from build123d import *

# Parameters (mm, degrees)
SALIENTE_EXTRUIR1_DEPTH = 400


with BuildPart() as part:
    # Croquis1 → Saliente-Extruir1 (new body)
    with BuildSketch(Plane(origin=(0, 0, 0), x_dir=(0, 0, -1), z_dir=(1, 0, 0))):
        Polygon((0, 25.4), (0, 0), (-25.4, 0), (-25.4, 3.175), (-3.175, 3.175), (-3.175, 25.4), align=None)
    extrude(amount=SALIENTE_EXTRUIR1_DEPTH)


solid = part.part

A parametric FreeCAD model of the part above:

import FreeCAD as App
import Part
import Sketcher

V = App.Vector
Q = App.Units.Quantity

doc = App.newDocument("Part")
body = doc.addObject("PartDesign::Body", "Body")

# Sketch on YZ plane
sketch1 = doc.addObject("Sketcher::SketchObject", "Sketch")
body.addObject(sketch1)
sketch1.AttachmentSupport = (doc.YZ_Plane, [""])
sketch1.MapMode = "FlatFace"
sketch1.addGeometry([
    Part.LineSegment(V(0, 0, 0), V(25.4, 0, 0)),  # 0
    Part.LineSegment(V(25.4, 0, 0), V(25.4, 3.2, 0)),  # 1
    Part.LineSegment(V(25.4, 3.2, 0), V(3.2, 3.2, 0)),  # 2
    Part.LineSegment(V(3.2, 3.2, 0), V(3.2, 25.4, 0)),  # 3
    Part.LineSegment(V(3.2, 25.4, 0), V(0, 25.4, 0)),  # 4
    Part.LineSegment(V(0, 25.4, 0), V(0, 0, 0)),  # 5
], False)
sketch1.addConstraint([
    Sketcher.Constraint("Coincident", 0, 2, 1, 1),
    Sketcher.Constraint("Coincident", 1, 2, 2, 1),
    Sketcher.Constraint("Coincident", 2, 2, 3, 1),
    Sketcher.Constraint("Coincident", 3, 2, 4, 1),
    Sketcher.Constraint("Coincident", 4, 2, 5, 1),
    Sketcher.Constraint("Coincident", 5, 2, 0, 1),
    Sketcher.Constraint("Horizontal", 0),
    Sketcher.Constraint("Vertical", 1),
    Sketcher.Constraint("Horizontal", 2),
    Sketcher.Constraint("Vertical", 3),
    Sketcher.Constraint("Horizontal", 4),
    Sketcher.Constraint("Vertical", 5),
    Sketcher.Constraint("Coincident", 5, 2, -1, 1),
    Sketcher.Constraint("Equal", 4, 1),
    Sketcher.Constraint("Equal", 2, 3),
    Sketcher.Constraint("DistanceX", 0, 1, 0, 2, Q("1 in")),
    Sketcher.Constraint("DistanceX", 2, 2, 2, 1, Q("0.875 in")),
])
pad1 = doc.addObject("PartDesign::Pad", "Pad")
body.addObject(pad1)
pad1.Profile = sketch1
pad1.Length = 400

doc.recompute()
